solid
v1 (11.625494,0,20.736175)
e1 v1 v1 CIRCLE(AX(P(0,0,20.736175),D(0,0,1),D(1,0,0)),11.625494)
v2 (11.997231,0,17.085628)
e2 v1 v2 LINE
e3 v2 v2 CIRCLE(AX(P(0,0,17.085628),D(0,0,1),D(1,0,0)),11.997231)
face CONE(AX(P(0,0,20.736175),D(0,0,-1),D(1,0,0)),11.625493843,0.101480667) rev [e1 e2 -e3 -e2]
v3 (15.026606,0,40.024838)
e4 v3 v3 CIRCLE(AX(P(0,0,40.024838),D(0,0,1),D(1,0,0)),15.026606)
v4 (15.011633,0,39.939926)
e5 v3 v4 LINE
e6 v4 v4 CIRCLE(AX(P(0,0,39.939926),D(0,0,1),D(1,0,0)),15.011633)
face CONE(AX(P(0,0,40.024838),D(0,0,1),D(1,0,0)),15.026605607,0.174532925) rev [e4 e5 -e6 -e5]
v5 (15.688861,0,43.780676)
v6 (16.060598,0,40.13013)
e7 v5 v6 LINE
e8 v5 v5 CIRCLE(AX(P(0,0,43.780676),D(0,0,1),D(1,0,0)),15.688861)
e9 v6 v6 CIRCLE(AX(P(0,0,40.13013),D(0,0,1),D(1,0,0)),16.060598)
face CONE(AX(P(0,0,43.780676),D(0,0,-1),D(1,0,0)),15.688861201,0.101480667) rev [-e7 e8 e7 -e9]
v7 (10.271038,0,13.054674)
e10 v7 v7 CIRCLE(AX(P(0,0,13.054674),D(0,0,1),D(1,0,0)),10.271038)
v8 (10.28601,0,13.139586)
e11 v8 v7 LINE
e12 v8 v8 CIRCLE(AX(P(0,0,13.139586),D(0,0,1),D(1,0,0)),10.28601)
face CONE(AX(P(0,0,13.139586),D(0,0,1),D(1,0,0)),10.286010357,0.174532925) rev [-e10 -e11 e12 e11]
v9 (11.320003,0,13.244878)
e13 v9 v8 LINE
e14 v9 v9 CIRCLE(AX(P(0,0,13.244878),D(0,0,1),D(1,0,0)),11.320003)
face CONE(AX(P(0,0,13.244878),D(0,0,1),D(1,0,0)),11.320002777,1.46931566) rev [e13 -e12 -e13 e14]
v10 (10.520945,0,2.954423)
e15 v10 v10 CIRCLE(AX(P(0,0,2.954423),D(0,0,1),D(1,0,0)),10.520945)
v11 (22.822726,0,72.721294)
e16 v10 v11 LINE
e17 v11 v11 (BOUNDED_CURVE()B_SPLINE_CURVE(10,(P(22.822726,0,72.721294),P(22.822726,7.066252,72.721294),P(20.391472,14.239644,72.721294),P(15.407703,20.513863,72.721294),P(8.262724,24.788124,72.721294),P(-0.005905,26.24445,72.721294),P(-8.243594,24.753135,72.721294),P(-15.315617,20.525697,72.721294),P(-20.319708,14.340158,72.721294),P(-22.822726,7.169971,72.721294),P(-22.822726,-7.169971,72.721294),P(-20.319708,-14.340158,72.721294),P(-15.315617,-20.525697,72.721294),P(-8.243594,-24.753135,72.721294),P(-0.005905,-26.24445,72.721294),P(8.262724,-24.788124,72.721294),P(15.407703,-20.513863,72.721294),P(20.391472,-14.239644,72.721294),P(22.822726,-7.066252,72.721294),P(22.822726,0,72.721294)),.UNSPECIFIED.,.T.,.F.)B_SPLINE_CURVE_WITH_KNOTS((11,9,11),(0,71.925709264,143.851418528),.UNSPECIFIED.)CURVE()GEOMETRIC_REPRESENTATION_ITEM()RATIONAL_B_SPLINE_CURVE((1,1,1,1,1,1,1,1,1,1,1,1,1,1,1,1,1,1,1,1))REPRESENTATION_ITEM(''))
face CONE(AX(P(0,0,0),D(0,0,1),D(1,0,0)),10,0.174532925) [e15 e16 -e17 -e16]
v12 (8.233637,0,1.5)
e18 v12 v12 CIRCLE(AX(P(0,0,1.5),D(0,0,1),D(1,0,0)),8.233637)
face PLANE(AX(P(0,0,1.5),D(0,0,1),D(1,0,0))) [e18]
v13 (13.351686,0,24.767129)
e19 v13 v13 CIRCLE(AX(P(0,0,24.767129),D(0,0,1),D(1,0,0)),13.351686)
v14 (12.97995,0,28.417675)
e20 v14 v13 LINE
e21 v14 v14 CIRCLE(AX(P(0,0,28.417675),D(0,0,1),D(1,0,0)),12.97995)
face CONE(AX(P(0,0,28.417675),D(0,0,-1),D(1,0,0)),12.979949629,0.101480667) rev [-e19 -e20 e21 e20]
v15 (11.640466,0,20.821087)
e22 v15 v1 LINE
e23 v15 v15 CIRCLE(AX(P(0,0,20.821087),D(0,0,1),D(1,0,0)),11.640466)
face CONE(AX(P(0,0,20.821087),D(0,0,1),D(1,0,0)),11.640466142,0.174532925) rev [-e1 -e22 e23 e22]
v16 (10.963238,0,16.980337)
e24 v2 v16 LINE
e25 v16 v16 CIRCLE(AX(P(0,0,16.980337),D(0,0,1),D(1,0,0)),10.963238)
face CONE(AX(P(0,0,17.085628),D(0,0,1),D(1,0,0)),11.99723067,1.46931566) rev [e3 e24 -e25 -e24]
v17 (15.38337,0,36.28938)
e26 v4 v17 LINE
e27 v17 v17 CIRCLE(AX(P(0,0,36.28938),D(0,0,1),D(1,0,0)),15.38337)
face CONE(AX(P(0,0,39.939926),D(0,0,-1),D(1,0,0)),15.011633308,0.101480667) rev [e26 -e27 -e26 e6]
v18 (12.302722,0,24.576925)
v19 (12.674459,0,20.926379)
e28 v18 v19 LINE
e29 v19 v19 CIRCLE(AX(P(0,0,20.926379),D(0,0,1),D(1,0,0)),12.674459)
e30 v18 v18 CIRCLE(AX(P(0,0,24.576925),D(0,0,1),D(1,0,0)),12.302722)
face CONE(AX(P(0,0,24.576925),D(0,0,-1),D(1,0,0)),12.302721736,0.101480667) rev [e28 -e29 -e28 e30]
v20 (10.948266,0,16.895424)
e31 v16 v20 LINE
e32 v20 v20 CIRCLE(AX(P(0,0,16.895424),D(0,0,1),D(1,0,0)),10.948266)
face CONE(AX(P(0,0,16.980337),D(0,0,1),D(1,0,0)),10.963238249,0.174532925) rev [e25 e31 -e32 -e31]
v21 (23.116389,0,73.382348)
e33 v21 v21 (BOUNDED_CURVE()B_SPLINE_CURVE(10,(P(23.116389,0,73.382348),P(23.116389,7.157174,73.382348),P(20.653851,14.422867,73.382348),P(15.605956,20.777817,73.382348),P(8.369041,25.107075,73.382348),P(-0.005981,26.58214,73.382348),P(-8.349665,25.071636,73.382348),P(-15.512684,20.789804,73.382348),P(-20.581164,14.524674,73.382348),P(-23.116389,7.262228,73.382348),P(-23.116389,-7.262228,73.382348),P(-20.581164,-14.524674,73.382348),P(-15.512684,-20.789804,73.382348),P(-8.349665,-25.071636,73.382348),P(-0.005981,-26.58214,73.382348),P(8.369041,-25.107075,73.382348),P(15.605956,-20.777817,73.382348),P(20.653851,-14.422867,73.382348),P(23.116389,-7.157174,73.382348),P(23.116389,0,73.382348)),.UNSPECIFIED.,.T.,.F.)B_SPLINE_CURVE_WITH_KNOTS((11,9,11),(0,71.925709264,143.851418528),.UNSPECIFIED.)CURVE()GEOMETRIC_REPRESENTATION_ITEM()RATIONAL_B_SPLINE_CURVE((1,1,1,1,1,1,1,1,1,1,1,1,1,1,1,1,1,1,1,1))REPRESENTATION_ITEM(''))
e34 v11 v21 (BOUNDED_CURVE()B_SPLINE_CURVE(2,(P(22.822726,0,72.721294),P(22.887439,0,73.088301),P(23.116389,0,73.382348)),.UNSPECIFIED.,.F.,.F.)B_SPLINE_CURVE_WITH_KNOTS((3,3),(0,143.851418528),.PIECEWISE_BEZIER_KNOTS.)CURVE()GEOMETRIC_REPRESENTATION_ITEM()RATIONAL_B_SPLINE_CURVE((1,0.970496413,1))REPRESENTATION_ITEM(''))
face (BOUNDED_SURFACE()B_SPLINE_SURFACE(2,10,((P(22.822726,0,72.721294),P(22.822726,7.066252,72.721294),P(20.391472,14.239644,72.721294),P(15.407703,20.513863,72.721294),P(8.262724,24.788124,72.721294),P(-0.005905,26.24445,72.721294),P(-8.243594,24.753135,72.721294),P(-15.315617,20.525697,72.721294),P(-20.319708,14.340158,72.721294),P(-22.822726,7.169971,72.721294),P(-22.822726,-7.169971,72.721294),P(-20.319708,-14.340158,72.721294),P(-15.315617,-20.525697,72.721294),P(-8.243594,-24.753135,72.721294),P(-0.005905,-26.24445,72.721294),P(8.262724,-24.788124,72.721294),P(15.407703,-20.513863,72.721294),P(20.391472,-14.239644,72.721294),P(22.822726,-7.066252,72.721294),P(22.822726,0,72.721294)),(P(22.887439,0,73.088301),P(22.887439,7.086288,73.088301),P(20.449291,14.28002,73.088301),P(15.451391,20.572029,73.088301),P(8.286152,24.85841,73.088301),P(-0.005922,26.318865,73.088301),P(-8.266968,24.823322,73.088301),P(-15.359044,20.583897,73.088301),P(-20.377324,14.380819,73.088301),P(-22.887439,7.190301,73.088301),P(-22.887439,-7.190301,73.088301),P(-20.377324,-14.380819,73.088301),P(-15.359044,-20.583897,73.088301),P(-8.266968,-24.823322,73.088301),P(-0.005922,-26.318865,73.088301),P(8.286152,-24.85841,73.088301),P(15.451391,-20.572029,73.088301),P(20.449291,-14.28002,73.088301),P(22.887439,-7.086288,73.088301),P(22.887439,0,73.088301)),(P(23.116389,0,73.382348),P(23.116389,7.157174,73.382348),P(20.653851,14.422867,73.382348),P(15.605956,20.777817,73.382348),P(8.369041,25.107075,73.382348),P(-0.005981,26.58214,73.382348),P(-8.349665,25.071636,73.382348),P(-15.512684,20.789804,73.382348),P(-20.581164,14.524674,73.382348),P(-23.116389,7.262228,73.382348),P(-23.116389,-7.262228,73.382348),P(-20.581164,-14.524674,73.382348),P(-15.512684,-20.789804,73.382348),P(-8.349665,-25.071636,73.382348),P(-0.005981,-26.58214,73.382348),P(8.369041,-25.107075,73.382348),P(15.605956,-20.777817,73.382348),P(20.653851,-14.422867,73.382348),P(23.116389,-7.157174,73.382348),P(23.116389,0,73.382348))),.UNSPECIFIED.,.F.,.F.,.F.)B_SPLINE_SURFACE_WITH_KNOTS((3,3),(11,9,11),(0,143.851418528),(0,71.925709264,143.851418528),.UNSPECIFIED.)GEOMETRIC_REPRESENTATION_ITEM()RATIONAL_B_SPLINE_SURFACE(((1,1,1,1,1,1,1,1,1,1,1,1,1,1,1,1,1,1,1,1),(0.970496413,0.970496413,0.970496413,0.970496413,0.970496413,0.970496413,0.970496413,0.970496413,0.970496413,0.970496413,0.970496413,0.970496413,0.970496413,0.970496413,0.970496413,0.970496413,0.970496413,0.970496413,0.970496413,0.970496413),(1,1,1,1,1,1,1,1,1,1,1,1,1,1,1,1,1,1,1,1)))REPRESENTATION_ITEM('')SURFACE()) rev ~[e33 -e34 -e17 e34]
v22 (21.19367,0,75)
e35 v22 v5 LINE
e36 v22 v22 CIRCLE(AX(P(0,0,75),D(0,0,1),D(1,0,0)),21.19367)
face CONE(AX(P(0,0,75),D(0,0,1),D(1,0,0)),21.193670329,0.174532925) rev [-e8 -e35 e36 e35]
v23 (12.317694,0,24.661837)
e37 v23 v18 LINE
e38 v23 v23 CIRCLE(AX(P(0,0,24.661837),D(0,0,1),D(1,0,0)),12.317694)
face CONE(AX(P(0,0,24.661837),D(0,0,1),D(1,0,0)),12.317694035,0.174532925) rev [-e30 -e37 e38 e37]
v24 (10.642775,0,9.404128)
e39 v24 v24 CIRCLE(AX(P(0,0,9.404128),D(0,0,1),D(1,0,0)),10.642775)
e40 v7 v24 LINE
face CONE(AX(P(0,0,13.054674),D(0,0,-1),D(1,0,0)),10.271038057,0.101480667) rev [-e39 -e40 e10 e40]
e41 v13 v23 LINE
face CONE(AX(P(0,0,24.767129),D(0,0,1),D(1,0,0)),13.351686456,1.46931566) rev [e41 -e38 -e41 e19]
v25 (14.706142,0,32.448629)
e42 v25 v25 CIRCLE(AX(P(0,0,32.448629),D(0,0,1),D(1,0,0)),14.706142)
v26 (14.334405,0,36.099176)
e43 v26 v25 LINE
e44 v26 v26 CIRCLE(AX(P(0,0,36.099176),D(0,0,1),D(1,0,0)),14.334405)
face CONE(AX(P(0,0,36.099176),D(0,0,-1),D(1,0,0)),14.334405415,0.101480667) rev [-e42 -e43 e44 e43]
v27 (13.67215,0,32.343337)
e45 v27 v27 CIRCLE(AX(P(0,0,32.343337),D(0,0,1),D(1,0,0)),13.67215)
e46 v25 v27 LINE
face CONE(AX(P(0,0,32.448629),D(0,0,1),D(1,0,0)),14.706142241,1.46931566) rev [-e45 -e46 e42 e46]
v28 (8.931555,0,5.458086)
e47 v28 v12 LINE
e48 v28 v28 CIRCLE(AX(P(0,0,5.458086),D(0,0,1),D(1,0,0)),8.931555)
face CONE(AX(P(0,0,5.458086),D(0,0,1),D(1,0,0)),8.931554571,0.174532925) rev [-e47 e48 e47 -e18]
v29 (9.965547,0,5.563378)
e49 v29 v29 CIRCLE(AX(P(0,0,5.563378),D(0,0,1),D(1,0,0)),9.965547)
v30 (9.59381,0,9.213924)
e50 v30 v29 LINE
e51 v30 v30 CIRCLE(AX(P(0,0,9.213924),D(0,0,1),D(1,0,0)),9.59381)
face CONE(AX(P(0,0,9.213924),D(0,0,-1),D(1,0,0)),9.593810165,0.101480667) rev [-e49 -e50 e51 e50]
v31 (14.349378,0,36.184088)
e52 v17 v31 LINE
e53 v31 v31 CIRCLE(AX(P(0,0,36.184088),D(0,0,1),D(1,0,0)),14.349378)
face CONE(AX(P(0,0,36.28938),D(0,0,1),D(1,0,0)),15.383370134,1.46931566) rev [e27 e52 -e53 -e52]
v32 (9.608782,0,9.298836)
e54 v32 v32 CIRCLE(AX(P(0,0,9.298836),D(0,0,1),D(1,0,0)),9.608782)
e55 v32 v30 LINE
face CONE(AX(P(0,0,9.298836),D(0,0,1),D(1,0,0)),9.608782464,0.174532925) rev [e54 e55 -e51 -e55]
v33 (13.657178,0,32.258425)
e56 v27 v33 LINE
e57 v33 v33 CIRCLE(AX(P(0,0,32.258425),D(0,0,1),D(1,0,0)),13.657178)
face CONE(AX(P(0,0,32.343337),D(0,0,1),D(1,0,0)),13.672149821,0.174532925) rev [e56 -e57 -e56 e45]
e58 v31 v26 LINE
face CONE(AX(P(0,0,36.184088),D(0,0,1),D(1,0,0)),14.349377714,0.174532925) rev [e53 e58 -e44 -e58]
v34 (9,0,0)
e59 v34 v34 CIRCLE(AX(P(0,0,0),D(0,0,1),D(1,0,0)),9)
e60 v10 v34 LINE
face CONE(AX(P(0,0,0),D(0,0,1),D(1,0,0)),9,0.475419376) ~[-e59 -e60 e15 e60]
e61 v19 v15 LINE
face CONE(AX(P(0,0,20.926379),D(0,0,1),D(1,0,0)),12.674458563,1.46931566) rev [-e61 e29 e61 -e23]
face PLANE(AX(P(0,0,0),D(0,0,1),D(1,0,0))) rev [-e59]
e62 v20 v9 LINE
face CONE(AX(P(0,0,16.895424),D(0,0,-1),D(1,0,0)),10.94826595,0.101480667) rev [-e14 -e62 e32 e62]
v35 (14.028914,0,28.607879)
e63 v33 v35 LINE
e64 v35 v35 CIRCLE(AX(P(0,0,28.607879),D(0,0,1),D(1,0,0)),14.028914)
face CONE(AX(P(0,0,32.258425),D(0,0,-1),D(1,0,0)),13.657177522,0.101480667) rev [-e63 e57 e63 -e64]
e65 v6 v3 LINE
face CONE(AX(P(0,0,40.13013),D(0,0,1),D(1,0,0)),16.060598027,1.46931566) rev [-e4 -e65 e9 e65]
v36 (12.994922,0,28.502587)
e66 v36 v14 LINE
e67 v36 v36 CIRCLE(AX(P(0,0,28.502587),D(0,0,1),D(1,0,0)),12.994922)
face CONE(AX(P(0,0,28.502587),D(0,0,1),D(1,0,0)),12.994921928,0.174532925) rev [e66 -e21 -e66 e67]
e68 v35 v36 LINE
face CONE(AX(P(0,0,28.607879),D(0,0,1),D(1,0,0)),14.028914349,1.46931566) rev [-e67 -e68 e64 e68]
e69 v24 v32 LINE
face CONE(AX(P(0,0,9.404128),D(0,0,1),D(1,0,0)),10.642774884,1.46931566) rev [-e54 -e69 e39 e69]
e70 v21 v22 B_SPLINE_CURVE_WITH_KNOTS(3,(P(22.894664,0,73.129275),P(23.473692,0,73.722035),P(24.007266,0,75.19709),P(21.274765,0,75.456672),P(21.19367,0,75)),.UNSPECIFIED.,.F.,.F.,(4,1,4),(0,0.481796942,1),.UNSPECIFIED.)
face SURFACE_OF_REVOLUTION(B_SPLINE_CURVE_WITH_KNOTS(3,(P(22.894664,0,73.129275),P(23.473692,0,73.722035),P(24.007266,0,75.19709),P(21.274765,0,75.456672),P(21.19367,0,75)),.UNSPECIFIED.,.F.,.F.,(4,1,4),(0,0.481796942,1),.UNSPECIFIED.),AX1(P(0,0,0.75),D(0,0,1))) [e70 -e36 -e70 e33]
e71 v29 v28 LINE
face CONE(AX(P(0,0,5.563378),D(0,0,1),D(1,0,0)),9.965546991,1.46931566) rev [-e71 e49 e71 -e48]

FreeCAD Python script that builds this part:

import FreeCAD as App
import Part
import Sketcher
from FreeCAD import Vector


def edges_at(feature, points):
    """Names of the edges that pass closest to the given points."""
    edges = feature.Shape.Edges
    near = lambda p: min(range(len(edges)), key=lambda i: edges[i].distToShape(Part.Vertex(*p))[0])
    return sorted({f"Edge{near(p) + 1}" for p in points})

doc = App.newDocument("Part")
params = doc.addObject("Spreadsheet::Sheet", "Params")
for row, (alias, value) in enumerate([
    ("sketch1_width", "10 mm"),
    ("sketch1_height", "1.5 mm"),
    ("revolution_angle", "360 deg"),
    ("fillet_radius", "1.5 mm"),
    ("chamfer_size", "3 mm"),
    ("chamfer_size2", "1 mm"),
], start=1):
    params.set(f"A{row}", alias)
    params.set(f"B{row}", "=" + value)
    params.setAlias(f"B{row}", alias)

body = doc.addObject("PartDesign::Body", "Body")

# Sketch on XZ plane
sketch1 = doc.addObject("Sketcher::SketchObject", "Sketch")
body.addObject(sketch1)
sketch1.AttachmentSupport = (doc.XZ_Plane, [""])
sketch1.MapMode = "FlatFace"
sketch1.addGeometry([
    Part.LineSegment(Vector(0, 1.5, 0), Vector(0, 0, 0)),  # 0
    Part.LineSegment(Vector(0, 0, 0), Vector(10, 0, 0)),  # 1
    Part.LineSegment(Vector(10, 0, 0), Vector(22.894664, 73.129275, 0)),  # 2
    Part.BSplineCurve([Vector(22.894664, 73.129275, 0), Vector(23.473692, 73.722035, 0), Vector(24.007266, 75.19709, 0), Vector(21.274765, 75.456672, 0), Vector(21.19367, 75, 0)], [4, 1, 4], [0, 0.481796942, 1], False, 3, [1, 1, 1, 1, 1], False),  # 3
    Part.LineSegment(Vector(21.19367, 75, 0), Vector(15.688861, 43.780676, 0)),  # 4
    Part.LineSegment(Vector(15.688861, 43.780676, 0), Vector(16.060598, 40.13013, 0)),  # 5
    Part.LineSegment(Vector(16.060598, 40.13013, 0), Vector(15.026606, 40.024838, 0)),  # 6
    Part.LineSegment(Vector(15.026606, 40.024838, 0), Vector(15.011633, 39.939926, 0)),  # 7
    Part.LineSegment(Vector(15.011633, 39.939926, 0), Vector(15.38337, 36.28938, 0)),  # 8
    Part.LineSegment(Vector(15.38337, 36.28938, 0), Vector(14.349378, 36.184088, 0)),  # 9
    Part.LineSegment(Vector(14.349378, 36.184088, 0), Vector(14.334405, 36.099176, 0)),  # 10
    Part.LineSegment(Vector(14.334405, 36.099176, 0), Vector(14.706142, 32.448629, 0)),  # 11
    Part.LineSegment(Vector(14.706142, 32.448629, 0), Vector(13.67215, 32.343337, 0)),  # 12
    Part.LineSegment(Vector(13.67215, 32.343337, 0), Vector(13.657178, 32.258425, 0)),  # 13
    Part.LineSegment(Vector(13.657178, 32.258425, 0), Vector(14.028914, 28.607879, 0)),  # 14
    Part.LineSegment(Vector(14.028914, 28.607879, 0), Vector(12.994922, 28.502587, 0)),  # 15
    Part.LineSegment(Vector(12.994922, 28.502587, 0), Vector(12.97995, 28.417675, 0)),  # 16
    Part.LineSegment(Vector(12.97995, 28.417675, 0), Vector(13.351686, 24.767129, 0)),  # 17
    Part.LineSegment(Vector(13.351686, 24.767129, 0), Vector(12.317694, 24.661837, 0)),  # 18
    Part.LineSegment(Vector(12.317694, 24.661837, 0), Vector(12.302722, 24.576925, 0)),  # 19
    Part.LineSegment(Vector(12.302722, 24.576925, 0), Vector(12.674459, 20.926379, 0)),  # 20
    Part.LineSegment(Vector(12.674459, 20.926379, 0), Vector(11.640466, 20.821087, 0)),  # 21
    Part.LineSegment(Vector(11.640466, 20.821087, 0), Vector(11.625494, 20.736175, 0)),  # 22
    Part.LineSegment(Vector(11.625494, 20.736175, 0), Vector(11.997231, 17.085628, 0)),  # 23
    Part.LineSegment(Vector(11.997231, 17.085628, 0), Vector(10.963238, 16.980337, 0)),  # 24
    Part.LineSegment(Vector(10.963238, 16.980337, 0), Vector(10.948266, 16.895424, 0)),  # 25
    Part.LineSegment(Vector(10.948266, 16.895424, 0), Vector(11.320003, 13.244878, 0)),  # 26
    Part.LineSegment(Vector(11.320003, 13.244878, 0), Vector(10.28601, 13.139586, 0)),  # 27
    Part.LineSegment(Vector(10.28601, 13.139586, 0), Vector(10.271038, 13.054674, 0)),  # 28
    Part.LineSegment(Vector(10.271038, 13.054674, 0), Vector(10.642775, 9.404128, 0)),  # 29
    Part.LineSegment(Vector(10.642775, 9.404128, 0), Vector(9.608782, 9.298836, 0)),  # 30
    Part.LineSegment(Vector(9.608782, 9.298836, 0), Vector(9.59381, 9.213924, 0)),  # 31
    Part.LineSegment(Vector(9.59381, 9.213924, 0), Vector(9.965547, 5.563378, 0)),  # 32
    Part.LineSegment(Vector(9.965547, 5.563378, 0), Vector(8.931555, 5.458086, 0)),  # 33
    Part.LineSegment(Vector(8.931555, 5.458086, 0), Vector(8.233637, 1.5, 0)),  # 34
    Part.LineSegment(Vector(8.233637, 1.5, 0), Vector(0, 1.5, 0)),  # 35
], False)
sketch1.addConstraint([
    Sketcher.Constraint("Block", 3),
    Sketcher.Constraint("Coincident", 0, 2, 1, 1),
    Sketcher.Constraint("Coincident", 1, 2, 2, 1),
    Sketcher.Constraint("Coincident", 2, 2, 3, 1),
    Sketcher.Constraint("Coincident", 3, 2, 4, 1),
    Sketcher.Constraint("Coincident", 4, 2, 5, 1),
    Sketcher.Constraint("Coincident", 5, 2, 6, 1),
    Sketcher.Constraint("Coincident", 6, 2, 7, 1),
    Sketcher.Constraint("Coincident", 7, 2, 8, 1),
    Sketcher.Constraint("Coincident", 8, 2, 9, 1),
    Sketcher.Constraint("Coincident", 9, 2, 10, 1),
    Sketcher.Constraint("Coincident", 10, 2, 11, 1),
    Sketcher.Constraint("Coincident", 11, 2, 12, 1),
    Sketcher.Constraint("Coincident", 12, 2, 13, 1),
    Sketcher.Constraint("Coincident", 13, 2, 14, 1),
    Sketcher.Constraint("Coincident", 14, 2, 15, 1),
    Sketcher.Constraint("Coincident", 15, 2, 16, 1),
    Sketcher.Constraint("Coincident", 16, 2, 17, 1),
    Sketcher.Constraint("Coincident", 17, 2, 18, 1),
    Sketcher.Constraint("Coincident", 18, 2, 19, 1),
    Sketcher.Constraint("Coincident", 19, 2, 20, 1),
    Sketcher.Constraint("Coincident", 20, 2, 21, 1),
    Sketcher.Constraint("Coincident", 21, 2, 22, 1),
    Sketcher.Constraint("Coincident", 22, 2, 23, 1),
    Sketcher.Constraint("Coincident", 23, 2, 24, 1),
    Sketcher.Constraint("Coincident", 24, 2, 25, 1),
    Sketcher.Constraint("Coincident", 25, 2, 26, 1),
    Sketcher.Constraint("Coincident", 26, 2, 27, 1),
    Sketcher.Constraint("Coincident", 27, 2, 28, 1),
    Sketcher.Constraint("Coincident", 28, 2, 29, 1),
    Sketcher.Constraint("Coincident", 29, 2, 30, 1),
    Sketcher.Constraint("Coincident", 30, 2, 31, 1),
    Sketcher.Constraint("Coincident", 31, 2, 32, 1),
    Sketcher.Constraint("Coincident", 32, 2, 33, 1),
    Sketcher.Constraint("Coincident", 33, 2, 34, 1),
    Sketcher.Constraint("Coincident", 34, 2, 35, 1),
    Sketcher.Constraint("Coincident", 35, 2, 0, 1),
    Sketcher.Constraint("Vertical", 0),
    Sketcher.Constraint("Horizontal", 1),
    Sketcher.Constraint("Horizontal", 35),
    Sketcher.Constraint("Coincident", 0, 2, -1, 1),
    Sketcher.Constraint("DistanceX", 1, 1, 1, 2, 10.0),
    Sketcher.Constraint("DistanceY", 0, 2, 0, 1, 1.5),
    Sketcher.Constraint("DistanceX", -1, 1, 5, 2, 16.060598),
    Sketcher.Constraint("DistanceY", 4, 2, 2, 2, 29.348599),
    Sketcher.Constraint("DistanceX", 10, 2, 6, 2, 0.6922),
    Sketcher.Constraint("DistanceX", 13, 2, 9, 2, 0.6922),
    Sketcher.Constraint("DistanceX", 16, 2, 12, 2, 0.6922),
    Sketcher.Constraint("DistanceX", 19, 2, 15, 2, 0.6922),
    Sketcher.Constraint("DistanceX", 22, 2, 18, 2, 0.6922),
    Sketcher.Constraint("DistanceX", 25, 2, 21, 2, 0.6922),
    Sketcher.Constraint("DistanceX", 28, 2, 24, 2, 0.6922),
    Sketcher.Constraint("DistanceX", 31, 2, 27, 2, 0.6922),
    Sketcher.Constraint("Distance", 6, 1.03934),
    Sketcher.Constraint("Distance", 9, 1.03934),
    Sketcher.Constraint("Distance", 12, 1.03934),
    Sketcher.Constraint("Distance", 15, 1.03934),
    Sketcher.Constraint("Distance", 18, 1.03934),
    Sketcher.Constraint("Distance", 21, 1.03934),
    Sketcher.Constraint("Distance", 24, 1.03934),
    Sketcher.Constraint("Distance", 27, 1.03934),
    Sketcher.Constraint("Distance", 30, 1.03934),
    Sketcher.Constraint("Distance", 33, 1.03934),
    Sketcher.Constraint("DistanceX", 35, 2, 35, 1, 8.233637),
    Sketcher.Constraint("DistanceX", -1, 1, 4, 2, 15.688861),
    Sketcher.Constraint("DistanceY", -1, 1, 5, 2, 40.13013),
    Sketcher.Constraint("DistanceX", -1, 1, 8, 2, 15.38337),
    Sketcher.Constraint("DistanceY", -1, 1, 8, 2, 36.28938),
    Sketcher.Constraint("DistanceY", -1, 1, 11, 2, 32.448629),
    Sketcher.Constraint("DistanceX", -1, 1, 12, 2, 13.67215),
    Sketcher.Constraint("DistanceY", -1, 1, 14, 2, 28.607879),
    Sketcher.Constraint("DistanceX", -1, 1, 15, 2, 12.994922),
    Sketcher.Constraint("DistanceY", -1, 1, 17, 2, 24.767129),
    Sketcher.Constraint("DistanceX", -1, 1, 20, 2, 12.674459),
    Sketcher.Constraint("DistanceY", -1, 1, 20, 2, 20.926379),
    Sketcher.Constraint("DistanceX", -1, 1, 23, 2, 11.997231),
    Sketcher.Constraint("DistanceY", -1, 1, 23, 2, 17.085628),
    Sketcher.Constraint("DistanceX", -1, 1, 24, 2, 10.963238),
    Sketcher.Constraint("DistanceY", -1, 1, 26, 2, 13.244878),
    Sketcher.Constraint("DistanceX", -1, 1, 27, 2, 10.28601),
    Sketcher.Constraint("DistanceY", 6, 2, 5, 2, 0.105292),
    Sketcher.Constraint("DistanceY", 7, 2, 4, 2, 3.84075),
    Sketcher.Constraint("DistanceX", 7, 2, 2, 2, 7.883031),
    Sketcher.Constraint("DistanceY", 9, 2, 8, 2, 0.105292),
    Sketcher.Constraint("DistanceY", 10, 2, 7, 2, 3.84075),
    Sketcher.Constraint("DistanceX", 11, 2, 7, 2, 0.305491),
    Sketcher.Constraint("DistanceY", 13, 2, 10, 2, 3.84075),
    Sketcher.Constraint("DistanceX", 14, 2, 10, 2, 0.305491),
    Sketcher.Constraint("DistanceY", 16, 2, 13, 2, 3.84075),
    Sketcher.Constraint("DistanceX", 17, 2, 13, 2, 0.305491),
    Sketcher.Constraint("DistanceY", 18, 2, 17, 2, 0.105292),
    Sketcher.Constraint("DistanceY", 19, 2, 16, 2, 3.84075),
    Sketcher.Constraint("DistanceY", 21, 2, 20, 2, 0.105292),
    Sketcher.Constraint("DistanceY", 22, 2, 19, 2, 3.84075),
    Sketcher.Constraint("DistanceY", 25, 2, 22, 2, 3.84075),
    Sketcher.Constraint("DistanceX", 26, 2, 22, 2, 0.305491),
    Sketcher.Constraint("DistanceY", 28, 2, 25, 2, 3.84075),
    Sketcher.Constraint("DistanceY", 29, 2, 27, 2, 3.735458),
    Sketcher.Constraint("DistanceX", 29, 2, 25, 2, 0.305491),
    Sketcher.Constraint("DistanceY", 30, 2, 29, 2, 0.105292),
    Sketcher.Constraint("DistanceY", 31, 2, 28, 2, 3.84075),
    Sketcher.Constraint("DistanceY", 32, 2, 30, 2, 3.735458),
    Sketcher.Constraint("DistanceX", 32, 2, 28, 2, 0.305491),
    Sketcher.Constraint("DistanceY", 33, 2, 32, 2, 0.105292),
])
sketch1.setExpression("Constraints[41]", "Params.sketch1_width")
sketch1.setExpression("Constraints[42]", "Params.sketch1_height")
revolution = doc.addObject("PartDesign::Revolution", "Revolution")
body.addObject(revolution)
revolution.Profile = sketch1
revolution.ReferenceAxis = (sketch1, ["V_Axis"])
revolution.setExpression("Angle", "Params.revolution_angle")
doc.recompute()

fillet = doc.addObject("PartDesign::Fillet", "Fillet")
body.addObject(fillet)
fillet.Base = (revolution, edges_at(revolution, [(-22.895, 0, 73.129)]))
fillet.setExpression("Radius", "Params.fillet_radius")
doc.recompute()

chamfer = doc.addObject("PartDesign::Chamfer", "Chamfer")
body.addObject(chamfer)
chamfer.Base = (fillet, edges_at(fillet, [(-10, 0, 0)]))
chamfer.ChamferType = "Two distances"
chamfer.setExpression("Size", "Params.chamfer_size")
chamfer.setExpression("Size2", "Params.chamfer_size2")

doc.recompute()
